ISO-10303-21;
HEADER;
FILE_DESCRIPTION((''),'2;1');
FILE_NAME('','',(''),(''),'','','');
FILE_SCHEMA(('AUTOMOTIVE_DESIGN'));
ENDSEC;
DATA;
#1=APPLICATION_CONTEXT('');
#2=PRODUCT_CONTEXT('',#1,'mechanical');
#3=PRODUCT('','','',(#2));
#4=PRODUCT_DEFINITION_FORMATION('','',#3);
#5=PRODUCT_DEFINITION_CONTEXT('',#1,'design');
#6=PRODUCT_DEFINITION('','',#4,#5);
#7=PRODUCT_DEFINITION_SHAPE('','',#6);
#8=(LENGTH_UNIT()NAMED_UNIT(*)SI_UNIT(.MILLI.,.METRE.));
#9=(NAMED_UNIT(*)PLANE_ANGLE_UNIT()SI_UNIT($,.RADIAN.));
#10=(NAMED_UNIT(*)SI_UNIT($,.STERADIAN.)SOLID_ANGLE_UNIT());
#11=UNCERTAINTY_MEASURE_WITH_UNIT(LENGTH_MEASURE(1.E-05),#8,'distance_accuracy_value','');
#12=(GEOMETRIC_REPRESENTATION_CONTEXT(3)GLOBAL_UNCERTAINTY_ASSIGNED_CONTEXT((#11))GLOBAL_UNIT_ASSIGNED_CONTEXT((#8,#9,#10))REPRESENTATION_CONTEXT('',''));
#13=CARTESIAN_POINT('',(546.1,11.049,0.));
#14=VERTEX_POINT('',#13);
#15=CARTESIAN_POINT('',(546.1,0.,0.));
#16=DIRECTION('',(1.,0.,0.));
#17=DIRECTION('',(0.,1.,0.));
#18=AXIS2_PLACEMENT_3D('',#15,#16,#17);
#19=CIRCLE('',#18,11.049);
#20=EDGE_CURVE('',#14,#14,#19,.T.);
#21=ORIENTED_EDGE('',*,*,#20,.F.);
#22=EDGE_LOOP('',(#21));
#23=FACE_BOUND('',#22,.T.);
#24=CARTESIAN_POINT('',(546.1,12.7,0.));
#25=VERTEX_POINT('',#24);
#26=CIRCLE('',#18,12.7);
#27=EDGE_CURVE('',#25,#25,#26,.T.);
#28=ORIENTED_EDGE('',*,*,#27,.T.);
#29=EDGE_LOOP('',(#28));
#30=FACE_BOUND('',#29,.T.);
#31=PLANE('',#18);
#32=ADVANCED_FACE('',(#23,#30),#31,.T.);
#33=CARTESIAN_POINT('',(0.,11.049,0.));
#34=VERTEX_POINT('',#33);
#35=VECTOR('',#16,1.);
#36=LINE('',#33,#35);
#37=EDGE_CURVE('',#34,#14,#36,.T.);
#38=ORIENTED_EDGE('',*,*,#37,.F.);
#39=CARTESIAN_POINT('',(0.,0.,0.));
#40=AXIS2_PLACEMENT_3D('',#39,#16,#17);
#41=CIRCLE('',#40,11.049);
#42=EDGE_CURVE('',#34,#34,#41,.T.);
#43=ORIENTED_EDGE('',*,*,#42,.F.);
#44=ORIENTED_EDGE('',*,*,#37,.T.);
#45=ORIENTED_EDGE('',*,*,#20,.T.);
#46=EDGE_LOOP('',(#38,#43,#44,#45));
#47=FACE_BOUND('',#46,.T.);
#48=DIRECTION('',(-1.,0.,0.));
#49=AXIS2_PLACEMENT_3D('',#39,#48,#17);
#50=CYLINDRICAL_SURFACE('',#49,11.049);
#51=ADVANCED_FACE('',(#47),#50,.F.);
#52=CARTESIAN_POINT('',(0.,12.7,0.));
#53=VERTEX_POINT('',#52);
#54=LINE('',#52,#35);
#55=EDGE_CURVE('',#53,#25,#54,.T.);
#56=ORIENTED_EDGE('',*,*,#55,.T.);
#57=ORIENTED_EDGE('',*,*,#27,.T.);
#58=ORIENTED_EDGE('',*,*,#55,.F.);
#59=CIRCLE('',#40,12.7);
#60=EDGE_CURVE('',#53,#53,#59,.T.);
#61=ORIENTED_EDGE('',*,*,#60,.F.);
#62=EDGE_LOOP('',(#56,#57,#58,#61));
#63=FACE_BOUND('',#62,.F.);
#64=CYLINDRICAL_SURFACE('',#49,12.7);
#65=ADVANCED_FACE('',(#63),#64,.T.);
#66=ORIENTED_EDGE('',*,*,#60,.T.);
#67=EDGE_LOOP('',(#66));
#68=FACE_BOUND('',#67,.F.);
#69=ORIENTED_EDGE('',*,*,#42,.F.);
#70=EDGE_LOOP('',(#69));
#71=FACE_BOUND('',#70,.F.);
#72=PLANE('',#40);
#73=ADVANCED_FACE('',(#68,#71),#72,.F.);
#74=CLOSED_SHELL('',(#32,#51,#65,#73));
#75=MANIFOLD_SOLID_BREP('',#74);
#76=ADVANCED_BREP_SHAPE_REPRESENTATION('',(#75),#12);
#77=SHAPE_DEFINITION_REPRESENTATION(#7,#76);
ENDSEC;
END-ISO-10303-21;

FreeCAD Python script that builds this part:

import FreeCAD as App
import Part
import Sketcher

V = App.Vector
Q = App.Units.Quantity

doc = App.newDocument("Part")
body = doc.addObject("PartDesign::Body", "Body")

sketch1 = body.newObject("Sketcher::SketchObject", "Sketch")
sketch1.AttachmentSupport = (doc.getObject("YZ_Plane"), [""])
sketch1.MapMode = "FlatFace"
sketch1.addGeometry(Part.Circle(V(0, 0, 0), V(0, 0, 1), 13), False)
sketch1.addGeometry(Part.Circle(V(0, 0, 0), V(0, 0, 1), 11), False)
sketch1.addConstraint(Sketcher.Constraint("Coincident", 0, 3, -1, 1))
sketch1.addConstraint(Sketcher.Constraint("Coincident", 1, 3, -1, 1))
sketch1.addConstraint(Sketcher.Constraint("Diameter", 0, Q("1 in")))
sketch1.addConstraint(Sketcher.Constraint("Diameter", 1, Q("0.87 in")))
pad1 = body.newObject("PartDesign::Pad", "Pad")
pad1.Profile = sketch1
pad1.Length = Q("21.5 in")

doc.recompute()
